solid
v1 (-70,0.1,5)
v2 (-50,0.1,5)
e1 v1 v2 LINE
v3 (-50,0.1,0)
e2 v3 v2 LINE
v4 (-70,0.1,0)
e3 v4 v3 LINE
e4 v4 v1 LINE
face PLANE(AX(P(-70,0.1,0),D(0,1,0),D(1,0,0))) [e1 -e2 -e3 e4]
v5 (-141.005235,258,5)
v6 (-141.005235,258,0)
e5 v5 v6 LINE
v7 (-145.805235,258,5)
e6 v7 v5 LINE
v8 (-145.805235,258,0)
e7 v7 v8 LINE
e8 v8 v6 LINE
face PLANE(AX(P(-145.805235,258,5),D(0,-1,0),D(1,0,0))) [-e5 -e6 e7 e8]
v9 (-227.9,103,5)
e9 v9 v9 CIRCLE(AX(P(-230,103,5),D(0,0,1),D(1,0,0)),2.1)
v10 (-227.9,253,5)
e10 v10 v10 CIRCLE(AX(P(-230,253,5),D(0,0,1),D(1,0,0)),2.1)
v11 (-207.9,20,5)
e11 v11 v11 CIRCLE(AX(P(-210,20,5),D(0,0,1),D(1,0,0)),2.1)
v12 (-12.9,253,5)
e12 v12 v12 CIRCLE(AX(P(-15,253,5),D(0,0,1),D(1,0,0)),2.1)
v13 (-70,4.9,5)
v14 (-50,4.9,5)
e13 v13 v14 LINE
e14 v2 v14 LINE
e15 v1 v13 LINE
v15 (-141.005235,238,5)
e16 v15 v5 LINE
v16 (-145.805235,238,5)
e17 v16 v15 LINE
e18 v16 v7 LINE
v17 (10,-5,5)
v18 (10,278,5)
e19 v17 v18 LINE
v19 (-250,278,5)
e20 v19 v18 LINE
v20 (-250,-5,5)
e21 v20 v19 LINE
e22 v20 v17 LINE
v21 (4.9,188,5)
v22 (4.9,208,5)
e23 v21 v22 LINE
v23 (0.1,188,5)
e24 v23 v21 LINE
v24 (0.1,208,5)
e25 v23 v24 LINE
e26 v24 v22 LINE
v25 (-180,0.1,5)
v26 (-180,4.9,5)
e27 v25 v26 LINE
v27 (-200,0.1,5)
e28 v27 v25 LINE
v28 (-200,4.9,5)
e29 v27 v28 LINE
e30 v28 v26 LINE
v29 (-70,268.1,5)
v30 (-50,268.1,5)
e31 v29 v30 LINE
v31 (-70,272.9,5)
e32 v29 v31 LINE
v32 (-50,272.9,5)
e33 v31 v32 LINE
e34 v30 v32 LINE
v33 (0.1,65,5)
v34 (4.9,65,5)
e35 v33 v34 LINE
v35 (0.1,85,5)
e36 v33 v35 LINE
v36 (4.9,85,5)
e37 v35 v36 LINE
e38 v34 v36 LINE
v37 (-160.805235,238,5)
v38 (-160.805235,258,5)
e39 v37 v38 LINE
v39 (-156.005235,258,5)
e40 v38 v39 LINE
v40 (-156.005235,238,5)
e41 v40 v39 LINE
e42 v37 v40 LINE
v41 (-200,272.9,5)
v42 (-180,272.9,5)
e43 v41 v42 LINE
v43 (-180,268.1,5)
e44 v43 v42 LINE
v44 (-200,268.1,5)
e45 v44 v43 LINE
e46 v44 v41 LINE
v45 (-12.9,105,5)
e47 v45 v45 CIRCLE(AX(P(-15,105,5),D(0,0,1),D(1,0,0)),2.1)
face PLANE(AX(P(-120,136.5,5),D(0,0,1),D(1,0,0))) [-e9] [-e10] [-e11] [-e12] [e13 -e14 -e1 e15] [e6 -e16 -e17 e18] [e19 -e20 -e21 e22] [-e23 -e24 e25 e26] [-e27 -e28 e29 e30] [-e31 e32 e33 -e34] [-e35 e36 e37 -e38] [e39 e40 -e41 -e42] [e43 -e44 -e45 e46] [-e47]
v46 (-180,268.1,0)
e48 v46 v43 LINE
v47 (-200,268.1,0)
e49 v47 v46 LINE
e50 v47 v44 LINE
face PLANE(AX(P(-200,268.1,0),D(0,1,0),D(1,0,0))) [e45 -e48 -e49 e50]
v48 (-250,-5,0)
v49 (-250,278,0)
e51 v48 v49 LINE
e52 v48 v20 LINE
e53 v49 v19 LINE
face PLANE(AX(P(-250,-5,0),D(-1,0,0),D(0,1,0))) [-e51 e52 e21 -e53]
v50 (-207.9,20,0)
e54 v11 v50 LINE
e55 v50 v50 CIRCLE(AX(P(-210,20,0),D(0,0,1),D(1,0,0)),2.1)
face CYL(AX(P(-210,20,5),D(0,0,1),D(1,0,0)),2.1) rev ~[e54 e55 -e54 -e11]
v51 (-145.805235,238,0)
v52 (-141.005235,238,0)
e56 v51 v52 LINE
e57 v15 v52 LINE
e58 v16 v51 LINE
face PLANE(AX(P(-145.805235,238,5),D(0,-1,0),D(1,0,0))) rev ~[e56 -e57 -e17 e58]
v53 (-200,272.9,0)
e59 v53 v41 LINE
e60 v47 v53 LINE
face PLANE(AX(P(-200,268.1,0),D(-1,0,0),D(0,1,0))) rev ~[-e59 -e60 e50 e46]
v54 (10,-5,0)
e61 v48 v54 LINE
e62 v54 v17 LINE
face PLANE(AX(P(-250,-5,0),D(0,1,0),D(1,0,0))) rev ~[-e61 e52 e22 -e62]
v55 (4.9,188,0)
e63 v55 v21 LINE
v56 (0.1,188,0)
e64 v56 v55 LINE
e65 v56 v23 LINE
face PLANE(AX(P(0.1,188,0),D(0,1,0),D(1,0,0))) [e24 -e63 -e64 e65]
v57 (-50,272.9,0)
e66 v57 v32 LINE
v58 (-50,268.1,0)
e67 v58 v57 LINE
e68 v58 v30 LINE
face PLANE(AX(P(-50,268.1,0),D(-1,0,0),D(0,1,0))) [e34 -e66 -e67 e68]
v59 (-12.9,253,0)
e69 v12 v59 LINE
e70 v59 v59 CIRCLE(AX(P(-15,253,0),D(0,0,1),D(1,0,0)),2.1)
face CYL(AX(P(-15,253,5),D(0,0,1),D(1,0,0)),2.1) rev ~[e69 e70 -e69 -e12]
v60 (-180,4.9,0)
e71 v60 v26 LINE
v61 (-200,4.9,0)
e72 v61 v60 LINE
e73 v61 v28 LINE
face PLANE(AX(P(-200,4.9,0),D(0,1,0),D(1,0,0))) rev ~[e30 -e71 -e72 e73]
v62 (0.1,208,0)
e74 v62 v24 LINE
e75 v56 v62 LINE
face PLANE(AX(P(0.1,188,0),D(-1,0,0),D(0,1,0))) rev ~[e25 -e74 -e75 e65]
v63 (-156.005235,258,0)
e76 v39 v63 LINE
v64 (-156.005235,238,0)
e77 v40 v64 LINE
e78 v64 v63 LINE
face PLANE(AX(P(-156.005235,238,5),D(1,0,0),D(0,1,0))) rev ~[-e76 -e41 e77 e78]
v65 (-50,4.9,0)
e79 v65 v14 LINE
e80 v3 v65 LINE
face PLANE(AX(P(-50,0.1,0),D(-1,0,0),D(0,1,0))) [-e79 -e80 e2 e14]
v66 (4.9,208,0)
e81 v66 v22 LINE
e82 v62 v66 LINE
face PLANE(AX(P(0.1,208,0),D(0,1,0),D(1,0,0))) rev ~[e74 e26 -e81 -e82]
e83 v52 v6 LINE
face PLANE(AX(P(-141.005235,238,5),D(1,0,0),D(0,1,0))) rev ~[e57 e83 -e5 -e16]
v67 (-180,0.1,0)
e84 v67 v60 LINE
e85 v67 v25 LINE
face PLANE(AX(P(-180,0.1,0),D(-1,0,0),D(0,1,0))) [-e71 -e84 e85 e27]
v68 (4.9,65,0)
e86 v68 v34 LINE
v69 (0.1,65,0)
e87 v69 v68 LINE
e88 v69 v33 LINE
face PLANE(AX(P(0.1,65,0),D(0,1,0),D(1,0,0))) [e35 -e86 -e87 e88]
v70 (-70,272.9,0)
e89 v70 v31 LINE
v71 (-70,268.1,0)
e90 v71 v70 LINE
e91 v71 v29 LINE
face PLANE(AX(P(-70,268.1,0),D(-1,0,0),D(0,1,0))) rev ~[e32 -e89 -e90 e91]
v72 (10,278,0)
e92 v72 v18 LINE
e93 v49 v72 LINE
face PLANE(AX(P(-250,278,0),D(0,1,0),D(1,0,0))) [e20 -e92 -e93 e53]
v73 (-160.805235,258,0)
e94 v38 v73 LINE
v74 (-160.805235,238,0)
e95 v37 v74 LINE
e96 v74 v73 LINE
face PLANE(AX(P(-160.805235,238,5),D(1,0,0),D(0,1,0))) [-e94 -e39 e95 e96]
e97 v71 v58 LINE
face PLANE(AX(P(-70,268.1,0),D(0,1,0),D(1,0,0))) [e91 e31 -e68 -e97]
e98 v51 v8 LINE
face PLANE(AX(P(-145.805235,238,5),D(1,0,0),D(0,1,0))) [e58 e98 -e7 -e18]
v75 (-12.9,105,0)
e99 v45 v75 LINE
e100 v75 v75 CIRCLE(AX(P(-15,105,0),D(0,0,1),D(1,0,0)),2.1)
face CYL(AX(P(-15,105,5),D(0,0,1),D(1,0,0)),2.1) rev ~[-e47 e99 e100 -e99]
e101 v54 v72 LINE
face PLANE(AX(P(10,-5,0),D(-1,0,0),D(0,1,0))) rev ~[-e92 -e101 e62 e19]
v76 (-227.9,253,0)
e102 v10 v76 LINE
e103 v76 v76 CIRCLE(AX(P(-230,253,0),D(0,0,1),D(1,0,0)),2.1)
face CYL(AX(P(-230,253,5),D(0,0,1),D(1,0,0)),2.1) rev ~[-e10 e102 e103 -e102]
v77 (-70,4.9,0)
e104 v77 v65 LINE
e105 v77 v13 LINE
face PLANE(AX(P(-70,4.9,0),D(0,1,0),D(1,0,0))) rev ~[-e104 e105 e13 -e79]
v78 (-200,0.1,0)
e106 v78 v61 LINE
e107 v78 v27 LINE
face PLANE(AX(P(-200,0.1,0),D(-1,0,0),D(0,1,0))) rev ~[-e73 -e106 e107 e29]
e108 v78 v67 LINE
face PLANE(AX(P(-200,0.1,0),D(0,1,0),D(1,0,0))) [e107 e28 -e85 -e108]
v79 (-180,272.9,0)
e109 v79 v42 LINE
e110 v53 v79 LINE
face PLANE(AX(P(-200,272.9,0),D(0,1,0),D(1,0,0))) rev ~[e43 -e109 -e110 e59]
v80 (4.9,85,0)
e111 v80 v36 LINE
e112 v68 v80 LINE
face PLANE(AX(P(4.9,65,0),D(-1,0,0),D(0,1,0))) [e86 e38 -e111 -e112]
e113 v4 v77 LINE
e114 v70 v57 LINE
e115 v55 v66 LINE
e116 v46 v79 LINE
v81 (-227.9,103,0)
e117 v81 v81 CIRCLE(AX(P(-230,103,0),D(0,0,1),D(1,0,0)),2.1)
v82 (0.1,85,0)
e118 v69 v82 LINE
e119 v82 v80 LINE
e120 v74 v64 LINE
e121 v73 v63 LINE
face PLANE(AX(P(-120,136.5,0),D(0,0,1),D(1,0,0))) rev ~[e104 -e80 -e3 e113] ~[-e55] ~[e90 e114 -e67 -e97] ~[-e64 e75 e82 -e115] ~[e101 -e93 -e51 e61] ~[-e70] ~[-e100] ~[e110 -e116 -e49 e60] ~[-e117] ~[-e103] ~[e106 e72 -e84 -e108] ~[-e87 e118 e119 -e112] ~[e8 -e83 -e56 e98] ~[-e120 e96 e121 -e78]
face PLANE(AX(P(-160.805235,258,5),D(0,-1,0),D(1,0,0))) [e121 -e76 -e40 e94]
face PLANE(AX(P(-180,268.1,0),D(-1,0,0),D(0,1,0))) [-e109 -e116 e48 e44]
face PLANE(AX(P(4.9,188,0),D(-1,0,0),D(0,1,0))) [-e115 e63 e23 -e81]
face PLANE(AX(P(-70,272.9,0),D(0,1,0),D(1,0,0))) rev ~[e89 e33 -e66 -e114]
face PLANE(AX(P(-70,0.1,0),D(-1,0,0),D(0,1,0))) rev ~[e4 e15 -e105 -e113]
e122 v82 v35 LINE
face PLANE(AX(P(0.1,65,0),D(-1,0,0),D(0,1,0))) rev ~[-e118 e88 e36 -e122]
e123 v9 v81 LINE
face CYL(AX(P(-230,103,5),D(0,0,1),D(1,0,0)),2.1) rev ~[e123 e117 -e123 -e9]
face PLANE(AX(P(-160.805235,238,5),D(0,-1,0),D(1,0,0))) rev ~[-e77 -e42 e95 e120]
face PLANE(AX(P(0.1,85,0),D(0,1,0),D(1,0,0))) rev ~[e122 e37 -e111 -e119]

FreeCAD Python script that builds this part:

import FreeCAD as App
import Part
import Sketcher

doc = App.newDocument("Part")
body = doc.addObject("PartDesign::Body", "Body")

sketch1 = body.newObject("Sketcher::SketchObject", "Sketch")
sketch1.AttachmentSupport = (doc.getObject("XY_Plane"), [""])
sketch1.MapMode = "FlatFace"
sketch1.addGeometry([
    Part.LineSegment(App.Vector(-250, 278, 0), App.Vector(-250, -5, 0)),
    Part.LineSegment(App.Vector(-250, -5, 0), App.Vector(10, -5, 0)),
    Part.LineSegment(App.Vector(10, -5, 0), App.Vector(10, 278, 0)),
    Part.LineSegment(App.Vector(10, 278, 0), App.Vector(-250, 278, 0)),
    Part.LineSegment(App.Vector(-180, 0.1, 0), App.Vector(-200, 0.1, 0)),
    Part.LineSegment(App.Vector(-200, 0.1, 0), App.Vector(-200, 4.9, 0)),
    Part.LineSegment(App.Vector(-200, 4.9, 0), App.Vector(-180, 4.9, 0)),
    Part.LineSegment(App.Vector(-180, 4.9, 0), App.Vector(-180, 0.1, 0)),
    Part.LineSegment(App.Vector(-50, 0.1, 0), App.Vector(-70, 0.1, 0)),
    Part.LineSegment(App.Vector(-70, 0.1, 0), App.Vector(-70, 4.9, 0)),
    Part.LineSegment(App.Vector(-70, 4.9, 0), App.Vector(-50, 4.9, 0)),
    Part.LineSegment(App.Vector(-50, 4.9, 0), App.Vector(-50, 0.1, 0)),
    Part.LineSegment(App.Vector(4.9, 65, 0), App.Vector(0.1, 65, 0)),
    Part.LineSegment(App.Vector(0.1, 65, 0), App.Vector(0.1, 85, 0)),
    Part.LineSegment(App.Vector(0.1, 85, 0), App.Vector(4.9, 85, 0)),
    Part.LineSegment(App.Vector(4.9, 85, 0), App.Vector(4.9, 65, 0)),
    Part.LineSegment(App.Vector(-180, 268.1, 0), App.Vector(-200, 268.1, 0)),
    Part.LineSegment(App.Vector(-200, 268.1, 0), App.Vector(-200, 272.9, 0)),
    Part.LineSegment(App.Vector(-200, 272.9, 0), App.Vector(-180, 272.9, 0)),
    Part.LineSegment(App.Vector(-180, 272.9, 0), App.Vector(-180, 268.1, 0)),
    Part.LineSegment(App.Vector(4.9, 188, 0), App.Vector(0.1, 188, 0)),
    Part.LineSegment(App.Vector(0.1, 188, 0), App.Vector(0.1, 208, 0)),
    Part.LineSegment(App.Vector(0.1, 208, 0), App.Vector(4.9, 208, 0)),
    Part.LineSegment(App.Vector(4.9, 208, 0), App.Vector(4.9, 188, 0)),
    Part.LineSegment(App.Vector(-50, 268.1, 0), App.Vector(-70, 268.1, 0)),
    Part.LineSegment(App.Vector(-70, 268.1, 0), App.Vector(-70, 272.9, 0)),
    Part.LineSegment(App.Vector(-70, 272.9, 0), App.Vector(-50, 272.9, 0)),
    Part.LineSegment(App.Vector(-50, 272.9, 0), App.Vector(-50, 268.1, 0)),
], False)
sketch1.addConstraint([
    Sketcher.Constraint("Coincident", 0, 2, 1, 1),
    Sketcher.Constraint("Coincident", 1, 2, 2, 1),
    Sketcher.Constraint("Coincident", 2, 2, 3, 1),
    Sketcher.Constraint("Coincident", 3, 2, 0, 1),
    Sketcher.Constraint("Coincident", 4, 2, 5, 1),
    Sketcher.Constraint("Coincident", 5, 2, 6, 1),
    Sketcher.Constraint("Coincident", 6, 2, 7, 1),
    Sketcher.Constraint("Coincident", 7, 2, 4, 1),
    Sketcher.Constraint("Coincident", 8, 2, 9, 1),
    Sketcher.Constraint("Coincident", 9, 2, 10, 1),
    Sketcher.Constraint("Coincident", 10, 2, 11, 1),
    Sketcher.Constraint("Coincident", 11, 2, 8, 1),
    Sketcher.Constraint("Coincident", 12, 2, 13, 1),
    Sketcher.Constraint("Coincident", 13, 2, 14, 1),
    Sketcher.Constraint("Coincident", 14, 2, 15, 1),
    Sketcher.Constraint("Coincident", 15, 2, 12, 1),
    Sketcher.Constraint("Coincident", 16, 2, 17, 1),
    Sketcher.Constraint("Coincident", 17, 2, 18, 1),
    Sketcher.Constraint("Coincident", 18, 2, 19, 1),
    Sketcher.Constraint("Coincident", 19, 2, 16, 1),
    Sketcher.Constraint("Coincident", 20, 2, 21, 1),
    Sketcher.Constraint("Coincident", 21, 2, 22, 1),
    Sketcher.Constraint("Coincident", 22, 2, 23, 1),
    Sketcher.Constraint("Coincident", 23, 2, 20, 1),
    Sketcher.Constraint("Coincident", 24, 2, 25, 1),
    Sketcher.Constraint("Coincident", 25, 2, 26, 1),
    Sketcher.Constraint("Coincident", 26, 2, 27, 1),
    Sketcher.Constraint("Coincident", 27, 2, 24, 1),
    Sketcher.Constraint("Vertical", 0),
    Sketcher.Constraint("Horizontal", 1),
    Sketcher.Constraint("Vertical", 2),
    Sketcher.Constraint("Horizontal", 3),
    Sketcher.Constraint("Horizontal", 4),
    Sketcher.Constraint("Vertical", 5),
    Sketcher.Constraint("Horizontal", 6),
    Sketcher.Constraint("Vertical", 7),
    Sketcher.Constraint("Horizontal", 8),
    Sketcher.Constraint("Vertical", 9),
    Sketcher.Constraint("Horizontal", 10),
    Sketcher.Constraint("Vertical", 11),
    Sketcher.Constraint("Horizontal", 12),
    Sketcher.Constraint("Vertical", 13),
    Sketcher.Constraint("Horizontal", 14),
    Sketcher.Constraint("Vertical", 15),
    Sketcher.Constraint("Horizontal", 16),
    Sketcher.Constraint("Vertical", 17),
    Sketcher.Constraint("Horizontal", 18),
    Sketcher.Constraint("Vertical", 19),
    Sketcher.Constraint("Horizontal", 20),
    Sketcher.Constraint("Vertical", 21),
    Sketcher.Constraint("Horizontal", 22),
    Sketcher.Constraint("Vertical", 23),
    Sketcher.Constraint("Horizontal", 24),
    Sketcher.Constraint("Vertical", 25),
    Sketcher.Constraint("Horizontal", 26),
    Sketcher.Constraint("Vertical", 27),
    Sketcher.Constraint("Horizontal", 7, 2, 8, 2),
    Sketcher.Constraint("Horizontal", 6, 2, 9, 2),
    Sketcher.Constraint("Horizontal", 19, 2, 24, 2),
    Sketcher.Constraint("Horizontal", 18, 2, 25, 2),
    Sketcher.Constraint("Vertical", 5, 2, 16, 2),
    Sketcher.Constraint("Vertical", 7, 2, 18, 2),
    Sketcher.Constraint("Vertical", 13, 2, 20, 2),
    Sketcher.Constraint("Vertical", 15, 2, 22, 2),
    Sketcher.Constraint("Vertical", 9, 2, 24, 2),
    Sketcher.Constraint("Vertical", 11, 2, 26, 2),
    Sketcher.Constraint("Equal", 6, 8),
    Sketcher.Constraint("Equal", 22, 5),
    Sketcher.Constraint("Equal", 26, 13),
    Sketcher.Constraint("Equal", 11, 17),
    Sketcher.Constraint("Equal", 15, 21),
    Sketcher.Constraint("DistanceX", 1, 1, 1, 2, 260.0),
    Sketcher.Constraint("DistanceX", 4, 2, 4, 1, 20.0),
    Sketcher.Constraint("DistanceY", 0, 2, 0, 1, 283.0),
    Sketcher.Constraint("DistanceX", 12, 2, 12, 1, 4.8),
    Sketcher.Constraint("DistanceX", 0, 2, -1, 1, 250.0),
    Sketcher.Constraint("DistanceY", 0, 2, -1, 1, 5.0),
    Sketcher.Constraint("DistanceX", 4, 2, -1, 1, 200.0),
    Sketcher.Constraint("DistanceX", 8, 2, -1, 1, 70.0),
    Sketcher.Constraint("DistanceY", -1, 1, 12, 2, 65.0),
    Sketcher.Constraint("DistanceY", -1, 1, 20, 2, 188.0),
    Sketcher.Constraint("DistanceY", 4, 2, 16, 2, 268.0),
    Sketcher.Constraint("DistanceY", -1, 1, 4, 2, 0.1),
    Sketcher.Constraint("DistanceX", -1, 1, 12, 2, 0.1),
])
pad1 = body.newObject("PartDesign::Pad", "Pad")
pad1.Profile = sketch1
pad1.Length = 5

sketch2 = body.newObject("Sketcher::SketchObject", "Sketch001")
sketch2.AttachmentSupport = (doc.getObject("XY_Plane"), [""])
sketch2.MapMode = "FlatFace"
sketch2.AttachmentOffset = App.Placement(App.Vector(0, 0, 5), App.Rotation())
sketch2.addGeometry([
    Part.LineSegment(App.Vector(-145.8, 258, 0), App.Vector(-145.8, 238, 0)),
    Part.LineSegment(App.Vector(-145.8, 238, 0), App.Vector(-141, 238, 0)),
    Part.LineSegment(App.Vector(-141, 238, 0), App.Vector(-141, 258, 0)),
    Part.LineSegment(App.Vector(-141, 258, 0), App.Vector(-145.8, 258, 0)),
    Part.LineSegment(App.Vector(-160.8, 258, 0), App.Vector(-160.8, 238, 0)),
    Part.LineSegment(App.Vector(-160.8, 238, 0), App.Vector(-156, 238, 0)),
    Part.LineSegment(App.Vector(-156, 238, 0), App.Vector(-156, 258, 0)),
    Part.LineSegment(App.Vector(-156, 258, 0), App.Vector(-160.8, 258, 0)),
], False)
sketch2.addConstraint([
    Sketcher.Constraint("Coincident", 0, 2, 1, 1),
    Sketcher.Constraint("Coincident", 1, 2, 2, 1),
    Sketcher.Constraint("Coincident", 2, 2, 3, 1),
    Sketcher.Constraint("Coincident", 3, 2, 0, 1),
    Sketcher.Constraint("Coincident", 4, 2, 5, 1),
    Sketcher.Constraint("Coincident", 5, 2, 6, 1),
    Sketcher.Constraint("Coincident", 6, 2, 7, 1),
    Sketcher.Constraint("Coincident", 7, 2, 4, 1),
    Sketcher.Constraint("Vertical", 0),
    Sketcher.Constraint("Horizontal", 1),
    Sketcher.Constraint("Vertical", 2),
    Sketcher.Constraint("Horizontal", 3),
    Sketcher.Constraint("Vertical", 4),
    Sketcher.Constraint("Horizontal", 5),
    Sketcher.Constraint("Vertical", 6),
    Sketcher.Constraint("Horizontal", 7),
    Sketcher.Constraint("Horizontal", 1, 2, 4, 2),
    Sketcher.Constraint("Horizontal", 3, 2, 6, 2),
    Sketcher.Constraint("Equal", 3, 5),
    Sketcher.Constraint("DistanceY", 0, 2, 0, 1, 20.0),
    Sketcher.Constraint("DistanceX", 1, 1, 1, 2, 4.8),
    Sketcher.Constraint("DistanceY", -1, 1, 0, 2, 238.0),
    Sketcher.Constraint("DistanceX", 4, 2, 0, 2, 15.0),
    Sketcher.Constraint("DistanceX", 0, 2, -1, 1, 145.805235),
])
pocket1 = body.newObject("PartDesign::Pocket", "Pocket")
pocket1.Profile = sketch2
pocket1.Length = 5

sketch3 = body.newObject("Sketcher::SketchObject", "Sketch002")
sketch3.AttachmentSupport = (doc.getObject("XY_Plane"), [""])
sketch3.MapMode = "FlatFace"
sketch3.AttachmentOffset = App.Placement(App.Vector(0, 0, 5), App.Rotation())
sketch3.addGeometry([
    Part.Circle(App.Vector(-230, 253, 0), App.Vector(0, 0, 1), 2.1),
    Part.Circle(App.Vector(-15, 253, 0), App.Vector(0, 0, 1), 2.1),
], False)
sketch3.addConstraint([
    Sketcher.Constraint("Equal", 0, 1),
    Sketcher.Constraint("Horizontal", 0, 3, 1, 3),
    Sketcher.Constraint("Diameter", 0, 4.2),
    Sketcher.Constraint("DistanceX", 0, 3, -1, 1, 230.0),
    Sketcher.Constraint("DistanceY", -1, 1, 0, 3, 253.0),
    Sketcher.Constraint("DistanceX", 1, 3, -1, 1, 15.0),
])
pocket2 = body.newObject("PartDesign::Pocket", "Pocket001")
pocket2.Profile = sketch3
pocket2.Length = 5

sketch4 = body.newObject("Sketcher::SketchObject", "Sketch003")
sketch4.AttachmentSupport = (doc.getObject("XY_Plane"), [""])
sketch4.MapMode = "FlatFace"
sketch4.AttachmentOffset = App.Placement(App.Vector(0, 0, 5), App.Rotation())
sketch4.addGeometry(Part.Circle(App.Vector(-210, 20, 0), App.Vector(0, 0, 1), 2.1), False)
sketch4.addConstraint([
    Sketcher.Constraint("Diameter", 0, 4.2),
    Sketcher.Constraint("DistanceX", 0, 3, -1, 1, 210.0),
    Sketcher.Constraint("DistanceY", -1, 1, 0, 3, 20.0),
])
pocket3 = body.newObject("PartDesign::Pocket", "Pocket002")
pocket3.Profile = sketch4
pocket3.Length = 5

sketch5 = body.newObject("Sketcher::SketchObject", "Sketch004")
sketch5.AttachmentSupport = (doc.getObject("XY_Plane"), [""])
sketch5.MapMode = "FlatFace"
sketch5.AttachmentOffset = App.Placement(App.Vector(0, 0, 5), App.Rotation())
sketch5.addGeometry(Part.Circle(App.Vector(-15, 105, 0), App.Vector(0, 0, 1), 2.1), False)
sketch5.addConstraint([
    Sketcher.Constraint("Diameter", 0, 4.2),
    Sketcher.Constraint("DistanceX", 0, 3, -1, 1, 15.0),
    Sketcher.Constraint("DistanceY", -1, 1, 0, 3, 105.0),
])
pocket4 = body.newObject("PartDesign::Pocket", "Pocket003")
pocket4.Profile = sketch5
pocket4.Length = 5

sketch6 = body.newObject("Sketcher::SketchObject", "Sketch005")
sketch6.AttachmentSupport = (doc.getObject("XY_Plane"), [""])
sketch6.MapMode = "FlatFace"
sketch6.AttachmentOffset = App.Placement(App.Vector(0, 0, 5), App.Rotation())
sketch6.addGeometry(Part.Circle(App.Vector(-230, 103, 0), App.Vector(0, 0, 1), 2.1), False)
sketch6.addConstraint([
    Sketcher.Constraint("Diameter", 0, 4.2),
    Sketcher.Constraint("DistanceX", 0, 3, -1, 1, 230.0),
    Sketcher.Constraint("DistanceY", -1, 1, 0, 3, 103.0),
])
pocket5 = body.newObject("PartDesign::Pocket", "Pocket004")
pocket5.Profile = sketch6
pocket5.Length = 5

doc.recompute()
